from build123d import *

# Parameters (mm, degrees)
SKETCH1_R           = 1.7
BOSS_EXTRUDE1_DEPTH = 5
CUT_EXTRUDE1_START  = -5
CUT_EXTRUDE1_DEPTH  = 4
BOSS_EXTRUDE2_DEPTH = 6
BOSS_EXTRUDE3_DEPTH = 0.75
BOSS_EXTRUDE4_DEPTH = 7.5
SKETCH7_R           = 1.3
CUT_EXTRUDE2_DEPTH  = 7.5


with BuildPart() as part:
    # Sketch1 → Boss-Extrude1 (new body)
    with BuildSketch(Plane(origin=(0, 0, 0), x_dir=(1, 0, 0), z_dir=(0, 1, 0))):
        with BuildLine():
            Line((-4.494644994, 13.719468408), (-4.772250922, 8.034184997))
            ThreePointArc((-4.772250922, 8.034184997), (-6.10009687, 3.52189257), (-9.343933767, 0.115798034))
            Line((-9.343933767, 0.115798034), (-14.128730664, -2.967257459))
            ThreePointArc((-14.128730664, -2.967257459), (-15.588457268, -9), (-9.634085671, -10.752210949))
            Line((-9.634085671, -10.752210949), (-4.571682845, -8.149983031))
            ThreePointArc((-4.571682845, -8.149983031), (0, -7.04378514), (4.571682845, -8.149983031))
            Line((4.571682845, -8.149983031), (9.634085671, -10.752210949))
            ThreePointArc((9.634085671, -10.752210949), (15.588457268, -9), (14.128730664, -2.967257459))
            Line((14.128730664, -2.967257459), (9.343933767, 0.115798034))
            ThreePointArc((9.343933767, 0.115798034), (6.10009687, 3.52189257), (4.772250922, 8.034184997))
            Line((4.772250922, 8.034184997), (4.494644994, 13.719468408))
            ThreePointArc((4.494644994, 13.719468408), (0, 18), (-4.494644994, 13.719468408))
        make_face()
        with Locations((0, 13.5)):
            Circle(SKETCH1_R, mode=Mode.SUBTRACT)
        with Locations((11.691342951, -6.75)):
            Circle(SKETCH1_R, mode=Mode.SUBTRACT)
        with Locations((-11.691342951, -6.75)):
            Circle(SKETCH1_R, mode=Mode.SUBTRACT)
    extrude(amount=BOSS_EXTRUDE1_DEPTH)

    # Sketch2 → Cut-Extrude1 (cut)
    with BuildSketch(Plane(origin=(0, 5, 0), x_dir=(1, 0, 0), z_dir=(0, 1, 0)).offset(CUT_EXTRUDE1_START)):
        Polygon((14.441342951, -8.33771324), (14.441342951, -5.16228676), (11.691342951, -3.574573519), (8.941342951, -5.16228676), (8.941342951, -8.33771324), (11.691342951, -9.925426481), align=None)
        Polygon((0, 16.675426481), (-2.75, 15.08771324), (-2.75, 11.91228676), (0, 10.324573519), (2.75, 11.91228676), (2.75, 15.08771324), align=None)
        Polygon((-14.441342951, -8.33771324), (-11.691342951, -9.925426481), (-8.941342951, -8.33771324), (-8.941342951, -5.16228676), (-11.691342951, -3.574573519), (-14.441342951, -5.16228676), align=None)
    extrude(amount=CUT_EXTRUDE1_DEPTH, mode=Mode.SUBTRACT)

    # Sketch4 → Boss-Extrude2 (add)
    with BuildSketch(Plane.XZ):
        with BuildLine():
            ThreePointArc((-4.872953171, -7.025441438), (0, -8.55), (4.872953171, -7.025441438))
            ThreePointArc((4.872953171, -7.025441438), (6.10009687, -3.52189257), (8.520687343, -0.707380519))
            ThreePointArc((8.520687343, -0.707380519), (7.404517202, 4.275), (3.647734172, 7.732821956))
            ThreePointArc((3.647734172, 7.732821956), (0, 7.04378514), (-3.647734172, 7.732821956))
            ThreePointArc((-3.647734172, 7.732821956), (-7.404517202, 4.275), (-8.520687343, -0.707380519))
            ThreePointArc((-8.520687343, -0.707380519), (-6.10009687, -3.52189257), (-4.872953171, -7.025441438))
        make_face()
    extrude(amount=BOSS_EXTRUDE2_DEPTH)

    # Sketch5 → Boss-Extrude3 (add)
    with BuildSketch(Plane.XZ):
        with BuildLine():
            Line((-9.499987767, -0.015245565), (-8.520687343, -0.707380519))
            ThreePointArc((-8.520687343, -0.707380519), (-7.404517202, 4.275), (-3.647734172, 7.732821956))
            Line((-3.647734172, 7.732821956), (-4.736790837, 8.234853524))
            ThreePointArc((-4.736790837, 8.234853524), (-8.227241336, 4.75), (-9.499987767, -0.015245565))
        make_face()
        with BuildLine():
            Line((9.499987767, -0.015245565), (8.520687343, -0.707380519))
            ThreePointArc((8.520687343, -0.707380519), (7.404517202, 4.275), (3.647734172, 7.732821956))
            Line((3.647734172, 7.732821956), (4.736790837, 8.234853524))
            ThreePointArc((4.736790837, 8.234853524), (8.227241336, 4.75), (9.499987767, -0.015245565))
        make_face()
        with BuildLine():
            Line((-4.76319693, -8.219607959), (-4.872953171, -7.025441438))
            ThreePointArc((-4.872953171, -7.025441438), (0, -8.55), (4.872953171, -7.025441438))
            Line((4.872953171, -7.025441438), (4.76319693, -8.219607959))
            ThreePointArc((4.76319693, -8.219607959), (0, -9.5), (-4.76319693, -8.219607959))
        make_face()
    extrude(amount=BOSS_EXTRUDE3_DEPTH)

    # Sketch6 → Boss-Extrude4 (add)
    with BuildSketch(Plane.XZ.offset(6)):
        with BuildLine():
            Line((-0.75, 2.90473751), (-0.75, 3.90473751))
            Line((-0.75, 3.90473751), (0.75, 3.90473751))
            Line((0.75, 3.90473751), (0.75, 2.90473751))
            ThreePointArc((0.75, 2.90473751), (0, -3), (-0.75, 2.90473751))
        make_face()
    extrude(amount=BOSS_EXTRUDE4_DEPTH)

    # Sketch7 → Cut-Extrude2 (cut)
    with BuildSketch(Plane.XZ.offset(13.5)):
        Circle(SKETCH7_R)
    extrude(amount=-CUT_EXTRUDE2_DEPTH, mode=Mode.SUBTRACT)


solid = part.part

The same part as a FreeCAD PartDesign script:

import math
import FreeCAD as App
import Part
import Sketcher

V = App.Vector
Q = App.Units.Quantity

doc = App.newDocument("Part")
body = doc.addObject("PartDesign::Body", "Body")

# Sketch on XZ plane
sketch1 = body.newObject("Sketcher::SketchObject", "Sketch")
sketch1.AttachmentSupport = (doc.getObject("XZ_Plane"), [""])
sketch1.MapMode = "FlatFace"
sketch1.addGeometry([
    Part.LineSegment(V(-4.494645, -13.719468, 0), V(-4.772251, -8.034185, 0)),  # 0
    Part.ArcOfCircle(Part.Circle(V(-14.760351, -8.521893, 0), V(0, 0, 1), 10), math.radians(2.795468), math.radians(57.204532)),  # 1
    Part.LineSegment(V(-9.343934, -0.115798, 0), V(-14.128731, 2.967257, 0)),  # 2
    Part.ArcOfCircle(Part.Circle(V(-11.691343, 6.75, 0), V(0, 0, 1), 4.5), math.radians(62.795468), math.radians(237.204532)),  # 3
    Part.LineSegment(V(-9.634086, 10.752211, 0), V(-4.571683, 8.149983, 0)),  # 4
    Part.ArcOfCircle(Part.Circle(V(0, 17.043785, 0), V(0, 0, 1), 10), math.radians(-117.204532), math.radians(-62.795468)),  # 5
    Part.LineSegment(V(4.571683, 8.149983, 0), V(9.634086, 10.752211, 0)),  # 6
    Part.ArcOfCircle(Part.Circle(V(11.691343, 6.75, 0), V(0, 0, 1), 4.5), math.radians(-57.204532), math.radians(117.204532)),  # 7
    Part.LineSegment(V(14.128731, 2.967257, 0), V(9.343934, -0.115798, 0)),  # 8
    Part.ArcOfCircle(Part.Circle(V(14.760351, -8.521893, 0), V(0, 0, 1), 10), math.radians(122.795468), math.radians(177.204532)),  # 9
    Part.LineSegment(V(4.772251, -8.034185, 0), V(4.494645, -13.719468, 0)),  # 10
    Part.ArcOfCircle(Part.Circle(V(0, -13.5, 0), V(0, 0, 1), 4.5), math.radians(-177.204532), math.radians(-2.795468)),  # 11
    Part.Circle(V(-11.691343, 6.75, 0), V(0, 0, 1), 1.7),  # 12
    Part.Circle(V(11.691343, 6.75, 0), V(0, 0, 1), 1.7),  # 13
    Part.Circle(V(0, -13.5, 0), V(0, 0, 1), 1.7),  # 14
], False)
sketch1.addConstraint([
    Sketcher.Constraint("Tangent", 0, 2, 1, 1),
    Sketcher.Constraint("Tangent", 1, 2, 2, 1),
    Sketcher.Constraint("Tangent", 2, 2, 3, 2),
    Sketcher.Constraint("Tangent", 3, 1, 4, 1),
    Sketcher.Constraint("Tangent", 4, 2, 5, 1),
    Sketcher.Constraint("Tangent", 5, 2, 6, 1),
    Sketcher.Constraint("Tangent", 6, 2, 7, 2),
    Sketcher.Constraint("Tangent", 7, 1, 8, 1),
    Sketcher.Constraint("Tangent", 8, 2, 9, 1),
    Sketcher.Constraint("Tangent", 9, 2, 10, 1),
    Sketcher.Constraint("Tangent", 10, 2, 11, 2),
    Sketcher.Constraint("Tangent", 11, 1, 0, 1),
    Sketcher.Constraint("Coincident", 12, 3, 3, 3),
    Sketcher.Constraint("Coincident", 13, 3, 7, 3),
    Sketcher.Constraint("Coincident", 14, 3, 11, 3),
    Sketcher.Constraint("Equal", 1, 5),
    Sketcher.Constraint("Equal", 3, 7),
    Sketcher.Constraint("Equal", 5, 9),
    Sketcher.Constraint("Equal", 7, 11),
    Sketcher.Constraint("Equal", 12, 13),
    Sketcher.Constraint("Equal", 13, 14),
    Sketcher.Constraint("Symmetric", 3, 3, 7, 3, -2),
    Sketcher.Constraint("Symmetric", 1, 3, 9, 3, -2),
    Sketcher.Constraint("PointOnObject", 5, 3, -2),
    Sketcher.Constraint("PointOnObject", 11, 3, -2),
    Sketcher.Constraint("Equal", 0, 2),
    Sketcher.Constraint("Equal", 2, 4),
    Sketcher.Constraint("Radius", 1, 10.0),
    Sketcher.Constraint("Diameter", 12, 3.4),
    Sketcher.Constraint("Radius", 3, 4.5),
    Sketcher.Constraint("DistanceY", 11, 3, -1, 1, 13.5),
    Sketcher.Constraint("DistanceY", -1, 1, 3, 3, 6.75),
    Sketcher.Constraint("DistanceY", 1, 2, -1, 1, 0.115798),
    Sketcher.Constraint("DistanceX", 1, 3, 9, 3, 29.520702),
])
pad1 = body.newObject("PartDesign::Pad", "Pad")
pad1.Profile = sketch1
pad1.Length = 5
pad1.Reversed = True

# Sketch on XZ plane
sketch2 = body.newObject("Sketcher::SketchObject", "Sketch001")
sketch2.AttachmentSupport = (doc.getObject("XZ_Plane"), [""])
sketch2.MapMode = "FlatFace"
sketch2.addGeometry([
    Part.LineSegment(V(14.441343, 8.337713, 0), V(14.441343, 5.162287, 0)),  # 0
    Part.LineSegment(V(14.441343, 5.162287, 0), V(11.691343, 3.574574, 0)),  # 1
    Part.LineSegment(V(11.691343, 3.574574, 0), V(8.941343, 5.162287, 0)),  # 2
    Part.LineSegment(V(8.941343, 5.162287, 0), V(8.941343, 8.337713, 0)),  # 3
    Part.LineSegment(V(8.941343, 8.337713, 0), V(11.691343, 9.925426, 0)),  # 4
    Part.LineSegment(V(11.691343, 9.925426, 0), V(14.441343, 8.337713, 0)),  # 5
    Part.LineSegment(V(0, -16.675426, 0), V(-2.75, -15.087713, 0)),  # 6
    Part.LineSegment(V(-2.75, -15.087713, 0), V(-2.75, -11.912287, 0)),  # 7
    Part.LineSegment(V(-2.75, -11.912287, 0), V(0, -10.324574, 0)),  # 8
    Part.LineSegment(V(0, -10.324574, 0), V(2.75, -11.912287, 0)),  # 9
    Part.LineSegment(V(2.75, -11.912287, 0), V(2.75, -15.087713, 0)),  # 10
    Part.LineSegment(V(2.75, -15.087713, 0), V(0, -16.675426, 0)),  # 11
    Part.LineSegment(V(-14.441343, 8.337713, 0), V(-11.691343, 9.925426, 0)),  # 12
    Part.LineSegment(V(-11.691343, 9.925426, 0), V(-8.941343, 8.337713, 0)),  # 13
    Part.LineSegment(V(-8.941343, 8.337713, 0), V(-8.941343, 5.162287, 0)),  # 14
    Part.LineSegment(V(-8.941343, 5.162287, 0), V(-11.691343, 3.574574, 0)),  # 15
    Part.LineSegment(V(-11.691343, 3.574574, 0), V(-14.441343, 5.162287, 0)),  # 16
    Part.LineSegment(V(-14.441343, 5.162287, 0), V(-14.441343, 8.337713, 0)),  # 17
], False)
sketch2.addConstraint([
    Sketcher.Constraint("Coincident", 0, 2, 1, 1),
    Sketcher.Constraint("Coincident", 1, 2, 2, 1),
    Sketcher.Constraint("Coincident", 2, 2, 3, 1),
    Sketcher.Constraint("Coincident", 3, 2, 4, 1),
    Sketcher.Constraint("Coincident", 4, 2, 5, 1),
    Sketcher.Constraint("Coincident", 5, 2, 0, 1),
    Sketcher.Constraint("Coincident", 6, 2, 7, 1),
    Sketcher.Constraint("Coincident", 7, 2, 8, 1),
    Sketcher.Constraint("Coincident", 8, 2, 9, 1),
    Sketcher.Constraint("Coincident", 9, 2, 10, 1),
    Sketcher.Constraint("Coincident", 10, 2, 11, 1),
    Sketcher.Constraint("Coincident", 11, 2, 6, 1),
    Sketcher.Constraint("Coincident", 12, 2, 13, 1),
    Sketcher.Constraint("Coincident", 13, 2, 14, 1),
    Sketcher.Constraint("Coincident", 14, 2, 15, 1),
    Sketcher.Constraint("Coincident", 15, 2, 16, 1),
    Sketcher.Constraint("Coincident", 16, 2, 17, 1),
    Sketcher.Constraint("Coincident", 17, 2, 12, 1),
    Sketcher.Constraint("Vertical", 0),
    Sketcher.Constraint("Vertical", 3),
    Sketcher.Constraint("Vertical", 7),
    Sketcher.Constraint("Vertical", 10),
    Sketcher.Constraint("Vertical", 14),
    Sketcher.Constraint("Vertical", 17),
    Sketcher.Constraint("Symmetric", 7, 2, 9, 2, -2),
    Sketcher.Constraint("Symmetric", 4, 2, 12, 2, -2),
    Sketcher.Constraint("Symmetric", 3, 2, 13, 2, -2),
    Sketcher.Constraint("Symmetric", 1, 2, 15, 2, -2),
    Sketcher.Constraint("Symmetric", 0, 2, 16, 2, -2),
    Sketcher.Constraint("PointOnObject", 8, 2, -2),
    Sketcher.Constraint("PointOnObject", 11, 2, -2),
    Sketcher.Constraint("Parallel", 1, 4),
    Sketcher.Constraint("Parallel", 2, 5),
    Sketcher.Constraint("Parallel", 5, 6),
    Sketcher.Constraint("Parallel", 4, 8),
    Sketcher.Constraint("Parallel", 6, 9),
    Sketcher.Constraint("Parallel", 8, 11),
    Sketcher.Constraint("Parallel", 11, 12),
    Sketcher.Constraint("Parallel", 12, 15),
    Sketcher.Constraint("Horizontal", 0, 2, 2, 2),
    Sketcher.Constraint("Horizontal", 3, 2, 5, 2),
    Sketcher.Constraint("Equal", 3, 7),
    Sketcher.Constraint("Equal", 5, 6),
    Sketcher.Constraint("Angle", 1, Q("-150 deg")),
    Sketcher.Constraint("DistanceX", 2, 2, 0, 2, 5.5),
    Sketcher.Constraint("DistanceY", 6, 2, 2, 2, 20.25),
    Sketcher.Constraint("DistanceY", 0, 2, 0, 1, 3.175426),
    Sketcher.Constraint("DistanceX", -1, 1, 0, 2, 14.441343),
    Sketcher.Constraint("DistanceY", -1, 1, 0, 2, 5.162287),
])
pocket1 = body.newObject("PartDesign::Pocket", "Pocket")
pocket1.Profile = sketch2
pocket1.Length = 4

# Sketch on XZ plane
sketch3 = body.newObject("Sketcher::SketchObject", "Sketch002")
sketch3.AttachmentSupport = (doc.getObject("XZ_Plane"), [""])
sketch3.MapMode = "FlatFace"
sketch3.addGeometry([
    Part.ArcOfCircle(Part.Circle(V(0, 0, 0), V(0, 0, 1), 8.55), math.radians(-124.745766), math.radians(-55.254234)),  # 0
    Part.ArcOfCircle(Part.Circle(V(14.760351, -8.521893, 0), V(0, 0, 1), 10), math.radians(128.606361), math.radians(171.393639)),  # 1
    Part.ArcOfCircle(Part.Circle(V(0, 0, 0), V(0, 0, 1), 8.55), math.radians(-4.745766), math.radians(64.745766)),  # 2
    Part.ArcOfCircle(Part.Circle(V(0, 17.043785, 0), V(0, 0, 1), 10), math.radians(-111.393639), math.radians(-68.606361)),  # 3
    Part.ArcOfCircle(Part.Circle(V(0, 0, 0), V(0, 0, 1), 8.55), math.radians(115.254234), math.radians(184.745766)),  # 4
    Part.ArcOfCircle(Part.Circle(V(-14.760351, -8.521893, 0), V(0, 0, 1), 10), math.radians(8.606361), math.radians(51.393639)),  # 5
], False)
sketch3.addConstraint([
    Sketcher.Constraint("Coincident", 0, 2, 1, 2),
    Sketcher.Constraint("Coincident", 1, 1, 2, 1),
    Sketcher.Constraint("Coincident", 2, 2, 3, 2),
    Sketcher.Constraint("Coincident", 3, 1, 4, 1),
    Sketcher.Constraint("Coincident", 4, 2, 5, 2),
    Sketcher.Constraint("Coincident", 5, 1, 0, 1),
    Sketcher.Constraint("Coincident", 0, 3, -1, 1),
    Sketcher.Constraint("Coincident", 2, 3, -1, 1),
    Sketcher.Constraint("Coincident", 4, 3, -1, 1),
    Sketcher.Constraint("Equal", 0, 2),
    Sketcher.Constraint("Equal", 1, 3),
    Sketcher.Constraint("Equal", 2, 4),
    Sketcher.Constraint("Equal", 3, 5),
    Sketcher.Constraint("Symmetric", 1, 3, 5, 3, -2),
    Sketcher.Constraint("PointOnObject", 3, 3, -2),
    Sketcher.Constraint("Radius", 1, 10.0),
    Sketcher.Constraint("Radius", 0, 8.55),
    Sketcher.Constraint("DistanceX", 5, 3, 1, 3, 29.520702),
    Sketcher.Constraint("DistanceY", 0, 2, -1, 1, 7.025441),
    Sketcher.Constraint("DistanceY", -1, 1, 2, 2, 7.732822),
])
pad2 = body.newObject("PartDesign::Pad", "Pad001")
pad2.Profile = sketch3
pad2.Length = 6

# Sketch on XZ plane
sketch4 = body.newObject("Sketcher::SketchObject", "Sketch003")
sketch4.AttachmentSupport = (doc.getObject("XZ_Plane"), [""])
sketch4.MapMode = "FlatFace"
sketch4.addGeometry([
    Part.LineSegment(V(-9.499988, -0.015246, 0), V(-8.520687, -0.707381, 0)),  # 0
    Part.ArcOfCircle(Part.Circle(V(0, 0, 0), V(0, 0, 1), 8.55), math.radians(115.254234), math.radians(184.745766)),  # 1
    Part.LineSegment(V(-3.647734, 7.732822, 0), V(-4.736791, 8.234854, 0)),  # 2
    Part.ArcOfCircle(Part.Circle(V(0, 0, 0), V(0, 0, 1), 9.5), math.radians(119.908052), math.radians(180.091948)),  # 3
    Part.LineSegment(V(8.520687, -0.707381, 0), V(9.499988, -0.015246, 0)),  # 4
    Part.ArcOfCircle(Part.Circle(V(0, 0, 0), V(0, 0, 1), 9.5), math.radians(-0.091948), math.radians(60.091948)),  # 5
    Part.LineSegment(V(4.736791, 8.234854, 0), V(3.647734, 7.732822, 0)),  # 6
    Part.ArcOfCircle(Part.Circle(V(0, 0, 0), V(0, 0, 1), 8.55), math.radians(-4.745766), math.radians(64.745766)),  # 7
    Part.LineSegment(V(-4.872953, -7.025441, 0), V(-4.763197, -8.219608, 0)),  # 8
    Part.ArcOfCircle(Part.Circle(V(0, 0, 0), V(0, 0, 1), 9.5), math.radians(-120.091948), math.radians(-59.908052)),  # 9
    Part.LineSegment(V(4.763197, -8.219608, 0), V(4.872953, -7.025441, 0)),  # 10
    Part.ArcOfCircle(Part.Circle(V(0, 0, 0), V(0, 0, 1), 8.55), math.radians(-124.745766), math.radians(-55.254234)),  # 11
], False)
sketch4.addConstraint([
    Sketcher.Constraint("Coincident", 0, 2, 1, 2),
    Sketcher.Constraint("Coincident", 1, 1, 2, 1),
    Sketcher.Constraint("Coincident", 2, 2, 3, 1),
    Sketcher.Constraint("Coincident", 3, 2, 0, 1),
    Sketcher.Constraint("Coincident", 4, 2, 5, 1),
    Sketcher.Constraint("Coincident", 5, 2, 6, 1),
    Sketcher.Constraint("Coincident", 6, 2, 7, 2),
    Sketcher.Constraint("Coincident", 7, 1, 4, 1),
    Sketcher.Constraint("Coincident", 8, 2, 9, 1),
    Sketcher.Constraint("Coincident", 9, 2, 10, 1),
    Sketcher.Constraint("Coincident", 10, 2, 11, 2),
    Sketcher.Constraint("Coincident", 11, 1, 8, 1),
    Sketcher.Constraint("Coincident", 1, 3, -1, 1),
    Sketcher.Constraint("Coincident", 3, 3, -1, 1),
    Sketcher.Constraint("Coincident", 5, 3, -1, 1),
    Sketcher.Constraint("Coincident", 7, 3, -1, 1),
    Sketcher.Constraint("Coincident", 9, 3, -1, 1),
    Sketcher.Constraint("Coincident", 11, 3, -1, 1),
    Sketcher.Constraint("Equal", 3, 5),
    Sketcher.Constraint("Equal", 1, 7),
    Sketcher.Constraint("Equal", 5, 9),
    Sketcher.Constraint("Equal", 7, 11),
    Sketcher.Constraint("Horizontal", 3, 2, 4, 2),
    Sketcher.Constraint("Horizontal", 2, 2, 5, 2),
    Sketcher.Constraint("Horizontal", 1, 1, 6, 2),
    Sketcher.Constraint("Horizontal", 0, 2, 7, 1),
    Sketcher.Constraint("Horizontal", 8, 2, 9, 2),
    Sketcher.Constraint("Horizontal", 10, 2, 11, 1),
    Sketcher.Constraint("Equal", 0, 2),
    Sketcher.Constraint("Equal", 6, 8),
    Sketcher.Constraint("Radius", 3, 9.5),
    Sketcher.Constraint("Radius", 1, 8.55),
    Sketcher.Constraint("Distance", 0, 1.1992),
    Sketcher.Constraint("DistanceX", 3, 2, 0, 2, 0.9793),
    Sketcher.Constraint("DistanceY", -1, 1, 1, 1, 7.732822),
    Sketcher.Constraint("DistanceY", 10, 2, -1, 1, 7.025441),
])
pad3 = body.newObject("PartDesign::Pad", "Pad002")
pad3.Profile = sketch4
pad3.Length = 0.75

# Sketch on XZ plane
sketch5 = body.newObject("Sketcher::SketchObject", "Sketch004")
sketch5.AttachmentSupport = (doc.getObject("XZ_Plane"), [""])
sketch5.MapMode = "FlatFace"
sketch5.AttachmentOffset = App.Placement(V(0, 0, 6), App.Rotation())
sketch5.addGeometry([
    Part.LineSegment(V(-0.75, 3.904738, 0), V(-0.75, 2.904738, 0)),
    Part.ArcOfCircle(Part.Circle(V(0, 0, 0), V(0, 0, 1), 3), math.radians(104.477512), math.radians(435.522488)),
    Part.LineSegment(V(0.75, 2.904738, 0), V(0.75, 3.904738, 0)),
    Part.LineSegment(V(0.75, 3.904738, 0), V(-0.75, 3.904738, 0)),
], False)
sketch5.addConstraint([
    Sketcher.Constraint("Coincident", 0, 2, 1, 1),
    Sketcher.Constraint("Coincident", 1, 2, 2, 1),
    Sketcher.Constraint("Coincident", 2, 2, 3, 1),
    Sketcher.Constraint("Coincident", 3, 2, 0, 1),
    Sketcher.Constraint("Vertical", 0),
    Sketcher.Constraint("Vertical", 2),
    Sketcher.Constraint("Horizontal", 3),
    Sketcher.Constraint("Coincident", 1, 3, -1, 1),
    Sketcher.Constraint("Horizontal", 0, 2, 1, 2),
    Sketcher.Constraint("Radius", 1, 3.0),
    Sketcher.Constraint("DistanceY", 0, 2, 0, 1, 1.0),
    Sketcher.Constraint("DistanceX", 3, 2, 3, 1, 1.5),
])
pad4 = body.newObject("PartDesign::Pad", "Pad003")
pad4.Profile = sketch5
pad4.Length = 7.5

# Sketch on XZ plane
sketch6 = body.newObject("Sketcher::SketchObject", "Sketch005")
sketch6.AttachmentSupport = (doc.getObject("XZ_Plane"), [""])
sketch6.MapMode = "FlatFace"
sketch6.AttachmentOffset = App.Placement(V(0, 0, 13.5), App.Rotation())
sketch6.addGeometry(Part.Circle(V(0, 0, 0), V(0, 0, 1), 1.3), False)
sketch6.addConstraint([
    Sketcher.Constraint("Coincident", 0, 3, -1, 1),
    Sketcher.Constraint("Diameter", 0, 2.6),
])
pocket2 = body.newObject("PartDesign::Pocket", "Pocket001")
pocket2.Profile = sketch6
pocket2.Length = 7.5

doc.recompute()
